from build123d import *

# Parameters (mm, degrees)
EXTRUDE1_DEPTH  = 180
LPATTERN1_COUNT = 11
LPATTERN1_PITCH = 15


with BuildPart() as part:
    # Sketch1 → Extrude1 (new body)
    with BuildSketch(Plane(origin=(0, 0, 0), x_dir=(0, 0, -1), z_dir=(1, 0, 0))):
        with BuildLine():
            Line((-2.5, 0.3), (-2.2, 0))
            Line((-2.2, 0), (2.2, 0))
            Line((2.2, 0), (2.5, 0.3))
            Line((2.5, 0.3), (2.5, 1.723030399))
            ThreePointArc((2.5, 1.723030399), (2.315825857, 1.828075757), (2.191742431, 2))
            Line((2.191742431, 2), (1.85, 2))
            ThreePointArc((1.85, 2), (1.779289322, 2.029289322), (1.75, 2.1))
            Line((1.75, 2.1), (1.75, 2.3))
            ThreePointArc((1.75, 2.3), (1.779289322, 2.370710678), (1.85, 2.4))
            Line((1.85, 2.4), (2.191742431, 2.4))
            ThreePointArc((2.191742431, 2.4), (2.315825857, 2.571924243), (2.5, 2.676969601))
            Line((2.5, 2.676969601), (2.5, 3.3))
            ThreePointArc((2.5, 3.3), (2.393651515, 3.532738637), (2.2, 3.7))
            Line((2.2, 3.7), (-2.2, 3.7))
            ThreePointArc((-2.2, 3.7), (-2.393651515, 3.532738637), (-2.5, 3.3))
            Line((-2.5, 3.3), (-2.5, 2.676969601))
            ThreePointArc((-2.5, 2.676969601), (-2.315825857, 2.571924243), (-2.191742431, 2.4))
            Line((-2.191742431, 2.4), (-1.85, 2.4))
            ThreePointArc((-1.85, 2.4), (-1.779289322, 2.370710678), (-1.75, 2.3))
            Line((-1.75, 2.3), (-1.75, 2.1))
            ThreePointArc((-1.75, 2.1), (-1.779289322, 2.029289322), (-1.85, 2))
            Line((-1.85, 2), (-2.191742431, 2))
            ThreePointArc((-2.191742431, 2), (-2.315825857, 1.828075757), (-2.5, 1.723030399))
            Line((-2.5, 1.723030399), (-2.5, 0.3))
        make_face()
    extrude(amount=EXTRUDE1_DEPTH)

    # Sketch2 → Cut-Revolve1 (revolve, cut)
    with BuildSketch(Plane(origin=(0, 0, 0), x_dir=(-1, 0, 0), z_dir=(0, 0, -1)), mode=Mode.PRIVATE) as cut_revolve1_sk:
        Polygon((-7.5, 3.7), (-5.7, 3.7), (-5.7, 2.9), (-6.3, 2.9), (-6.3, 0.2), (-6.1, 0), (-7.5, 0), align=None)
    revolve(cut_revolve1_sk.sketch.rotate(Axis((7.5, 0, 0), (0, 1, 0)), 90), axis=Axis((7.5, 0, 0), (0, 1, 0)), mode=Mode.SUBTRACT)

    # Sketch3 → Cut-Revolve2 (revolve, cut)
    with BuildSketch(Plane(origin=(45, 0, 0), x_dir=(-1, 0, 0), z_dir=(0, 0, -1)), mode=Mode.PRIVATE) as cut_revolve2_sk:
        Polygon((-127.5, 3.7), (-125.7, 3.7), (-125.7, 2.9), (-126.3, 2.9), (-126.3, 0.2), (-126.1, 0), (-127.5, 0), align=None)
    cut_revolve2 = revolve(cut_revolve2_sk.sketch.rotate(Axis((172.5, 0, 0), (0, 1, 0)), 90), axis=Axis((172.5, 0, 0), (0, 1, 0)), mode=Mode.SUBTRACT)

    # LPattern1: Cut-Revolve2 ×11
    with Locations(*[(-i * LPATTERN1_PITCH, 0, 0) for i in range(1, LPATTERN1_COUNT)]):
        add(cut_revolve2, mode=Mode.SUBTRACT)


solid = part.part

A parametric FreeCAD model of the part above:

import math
import FreeCAD as App
import Part
import Sketcher
from FreeCAD import Vector
Q = App.Units.Quantity


def add_polygon(sketch, points):
    """Adds a closed chain of lines whose ends are joined by coincident constraints."""
    first, n = sketch.GeometryCount, len(points)
    for a, b in zip(points, points[1:] + points[:1]):
        sketch.addGeometry(Part.LineSegment(App.Vector(*a, 0), App.Vector(*b, 0)), False)
    for i in range(n):
        sketch.addConstraint(Sketcher.Constraint("Coincident", first + i, 2, first + (i + 1) % n, 1))

doc = App.newDocument("Part")
body = doc.addObject("PartDesign::Body", "Body")

sketch1 = body.newObject("Sketcher::SketchObject", "Sketch")
sketch1.AttachmentSupport = (doc.getObject("YZ_Plane"), [""])
sketch1.MapMode = "FlatFace"
sketch1.addGeometry([
    Part.LineSegment(Vector(0.3, 2.5, 0), Vector(0, 2.2, 0)),
    Part.LineSegment(Vector(0, 2.2, 0), Vector(0, -2.2, 0)),
    Part.LineSegment(Vector(0, -2.2, 0), Vector(0.3, -2.5, 0)),
    Part.LineSegment(Vector(0.3, -2.5, 0), Vector(1.72303, -2.5, 0)),
    Part.ArcOfCircle(Part.Circle(Vector(2.2, -2.65, 0), Vector(0, 0, 1), 0.5), math.radians(113.578178), math.radians(162.542397)),
    Part.LineSegment(Vector(2, -2.191742, 0), Vector(2, -1.85, 0)),
    Part.ArcOfCircle(Part.Circle(Vector(2.1, -1.85, 0), Vector(0, 0, 1), 0.1), math.radians(90), math.radians(180)),
    Part.LineSegment(Vector(2.1, -1.75, 0), Vector(2.3, -1.75, 0)),
    Part.ArcOfCircle(Part.Circle(Vector(2.3, -1.85, 0), Vector(0, 0, 1), 0.1), math.radians(0), math.radians(90)),
    Part.LineSegment(Vector(2.4, -1.85, 0), Vector(2.4, -2.191742, 0)),
    Part.ArcOfCircle(Part.Circle(Vector(2.2, -2.65, 0), Vector(0, 0, 1), 0.5), math.radians(17.457603), math.radians(66.421822)),
    Part.LineSegment(Vector(2.67697, -2.5, 0), Vector(3.3, -2.5, 0)),
    Part.ArcOfCircle(Part.Circle(Vector(3.172739, -1.913652, 0), Vector(0, 0, 1), 0.6), math.radians(-77.754421), math.radians(-28.505784)),
    Part.LineSegment(Vector(3.7, -2.2, 0), Vector(3.7, 2.2, 0)),
    Part.ArcOfCircle(Part.Circle(Vector(3.172739, 1.913652, 0), Vector(0, 0, 1), 0.6), math.radians(28.505784), math.radians(77.754421)),
    Part.LineSegment(Vector(3.3, 2.5, 0), Vector(2.67697, 2.5, 0)),
    Part.ArcOfCircle(Part.Circle(Vector(2.2, 2.65, 0), Vector(0, 0, 1), 0.5), math.radians(-66.421822), math.radians(-17.457603)),
    Part.LineSegment(Vector(2.4, 2.191742, 0), Vector(2.4, 1.85, 0)),
    Part.ArcOfCircle(Part.Circle(Vector(2.3, 1.85, 0), Vector(0, 0, 1), 0.1), math.radians(-90), math.radians(0)),
    Part.LineSegment(Vector(2.3, 1.75, 0), Vector(2.1, 1.75, 0)),
    Part.ArcOfCircle(Part.Circle(Vector(2.1, 1.85, 0), Vector(0, 0, 1), 0.1), math.radians(180), math.radians(270)),
    Part.LineSegment(Vector(2, 1.85, 0), Vector(2, 2.191742, 0)),
    Part.ArcOfCircle(Part.Circle(Vector(2.2, 2.65, 0), Vector(0, 0, 1), 0.5), math.radians(-162.542397), math.radians(-113.578178)),
    Part.LineSegment(Vector(1.72303, 2.5, 0), Vector(0.3, 2.5, 0)),
], False)
sketch1.addConstraint([
    Sketcher.Constraint("Coincident", 0, 2, 1, 1),
    Sketcher.Constraint("Coincident", 1, 2, 2, 1),
    Sketcher.Constraint("Coincident", 2, 2, 3, 1),
    Sketcher.Constraint("Coincident", 3, 2, 4, 2),
    Sketcher.Constraint("Coincident", 4, 1, 5, 1),
    Sketcher.Constraint("Tangent", 5, 2, 6, 2),
    Sketcher.Constraint("Tangent", 6, 1, 7, 1),
    Sketcher.Constraint("Tangent", 7, 2, 8, 2),
    Sketcher.Constraint("Tangent", 8, 1, 9, 1),
    Sketcher.Constraint("Coincident", 9, 2, 10, 2),
    Sketcher.Constraint("Coincident", 10, 1, 11, 1),
    Sketcher.Constraint("Coincident", 11, 2, 12, 1),
    Sketcher.Constraint("Coincident", 12, 2, 13, 1),
    Sketcher.Constraint("Coincident", 13, 2, 14, 1),
    Sketcher.Constraint("Coincident", 14, 2, 15, 1),
    Sketcher.Constraint("Coincident", 15, 2, 16, 2),
    Sketcher.Constraint("Coincident", 16, 1, 17, 1),
    Sketcher.Constraint("Tangent", 17, 2, 18, 2),
    Sketcher.Constraint("Tangent", 18, 1, 19, 1),
    Sketcher.Constraint("Tangent", 19, 2, 20, 2),
    Sketcher.Constraint("Tangent", 20, 1, 21, 1),
    Sketcher.Constraint("Coincident", 21, 2, 22, 2),
    Sketcher.Constraint("Coincident", 22, 1, 23, 1),
    Sketcher.Constraint("Coincident", 23, 2, 0, 1),
    Sketcher.Constraint("Vertical", 1),
    Sketcher.Constraint("Horizontal", 3),
    Sketcher.Constraint("Vertical", 5),
    Sketcher.Constraint("Horizontal", 7),
    Sketcher.Constraint("Vertical", 9),
    Sketcher.Constraint("Horizontal", 11),
    Sketcher.Constraint("Vertical", 13),
    Sketcher.Constraint("Horizontal", 15),
    Sketcher.Constraint("Vertical", 17),
    Sketcher.Constraint("Horizontal", 19),
    Sketcher.Constraint("Vertical", 21),
    Sketcher.Constraint("Horizontal", 23),
    Sketcher.Constraint("Coincident", 10, 3, 4, 3),
    Sketcher.Constraint("Coincident", 22, 3, 16, 3),
    Sketcher.Constraint("Equal", 6, 8),
    Sketcher.Constraint("Equal", 4, 10),
    Sketcher.Constraint("Equal", 12, 14),
    Sketcher.Constraint("Equal", 10, 16),
    Sketcher.Constraint("Equal", 8, 18),
    Sketcher.Constraint("Equal", 18, 20),
    Sketcher.Constraint("Equal", 16, 22),
    Sketcher.Constraint("Symmetric", 0, 2, 1, 2, -1, 1),
    Sketcher.Constraint("Symmetric", 12, 3, 14, 3, -1),
    Sketcher.Constraint("Symmetric", 4, 3, 16, 3, -1),
    Sketcher.Constraint("Symmetric", 8, 3, 18, 3, -1),
    Sketcher.Constraint("Symmetric", 2, 2, 23, 2, -1),
    Sketcher.Constraint("Perpendicular", 0, 2),
    Sketcher.Constraint("Horizontal", 4, 1, 9, 2),
    Sketcher.Constraint("Horizontal", 3, 2, 10, 1),
    Sketcher.Constraint("Horizontal", 1, 2, 12, 2),
    Sketcher.Constraint("Horizontal", 16, 1, 21, 2),
    Sketcher.Constraint("Horizontal", 15, 2, 22, 1),
    Sketcher.Constraint("Radius", 4, Q("0.5 mm")),
    Sketcher.Constraint("Radius", 6, Q("0.1 mm")),
    Sketcher.Constraint("Radius", 12, Q("0.6 mm")),
    Sketcher.Constraint("DistanceX", 7, 1, 7, 2, Q("0.2 mm")),
    Sketcher.Constraint("DistanceY", 1, 2, 1, 1, Q("4.4 mm")),
    Sketcher.Constraint("DistanceX", -1, 1, 4, 1, Q("2 mm")),
    Sketcher.Constraint("DistanceX", 2, 2, 8, 3, Q("2 mm")),
    Sketcher.Constraint("DistanceX", 18, 3, 14, 2, Q("1 mm")),
    Sketcher.Constraint("DistanceX", -1, 1, 12, 2, Q("3.7 mm")),
    Sketcher.Constraint("DistanceY", 4, 3, 6, 3, Q("0.8 mm")),
    Sketcher.Constraint("DistanceY", 8, 3, 16, 3, Q("4.5 mm")),
])
pad1 = body.newObject("PartDesign::Pad", "Pad")
pad1.Profile = sketch1
pad1.Length = 180

sketch2 = body.newObject("Sketcher::SketchObject", "Sketch001")
sketch2.AttachmentSupport = (doc.getObject("XY_Plane"), [""])
sketch2.MapMode = "FlatFace"
add_polygon(sketch2, [(5.7, 3.7), (7.5, 3.7), (7.5, 0), (6.1, 0), (6.3, 0.2), (6.3, 2.9), (5.7, 2.9)])
sketch2.addGeometry(Part.LineSegment(Vector(7.5, 0, 0), Vector(7.5, 3.7, 0)), True)
sketch2.addConstraint([
    Sketcher.Constraint("Horizontal", 0),
    Sketcher.Constraint("Vertical", 1),
    Sketcher.Constraint("Horizontal", 2),
    Sketcher.Constraint("Vertical", 4),
    Sketcher.Constraint("Horizontal", 5),
    Sketcher.Constraint("Vertical", 6),
    Sketcher.Constraint("Vertical", 7),
    Sketcher.Constraint("Coincident", 7, 1, 1, 2),
    Sketcher.Constraint("PointOnObject", 1, 2, -1),
    Sketcher.Constraint("Horizontal", 6, 2, 7, 2),
    Sketcher.Constraint("Angle", 3, Q("45 deg")),
    Sketcher.Constraint("DistanceX", 0, 1, 0, 2, Q("1.8 mm")),
    Sketcher.Constraint("DistanceX", 2, 2, 2, 1, Q("1.4 mm")),
    Sketcher.Constraint("DistanceX", 5, 2, 5, 1, Q("0.6 mm")),
    Sketcher.Constraint("DistanceY", 1, 2, 1, 1, Q("3.7 mm")),
    Sketcher.Constraint("DistanceY", 4, 1, 4, 2, Q("2.7 mm")),
    Sketcher.Constraint("DistanceX", -1, 1, 0, 2, Q("7.5 mm")),
])
groove = body.newObject("PartDesign::Groove", "Groove")
groove.Profile = sketch2
groove.ReferenceAxis = (sketch2, ["Axis0"])
groove.Angle = 360

sketch3 = body.newObject("Sketcher::SketchObject", "Sketch002")
sketch3.AttachmentSupport = (doc.getObject("XY_Plane"), [""])
sketch3.MapMode = "FlatFace"
add_polygon(sketch3, [(170.7, 3.7), (172.5, 3.7), (172.5, 0), (171.1, 0), (171.3, 0.2), (171.3, 2.9), (170.7, 2.9)])
sketch3.addGeometry(Part.LineSegment(Vector(172.5, 0, 0), Vector(172.5, 3.7, 0)), True)
sketch3.addConstraint([
    Sketcher.Constraint("Horizontal", 0),
    Sketcher.Constraint("Vertical", 1),
    Sketcher.Constraint("Horizontal", 2),
    Sketcher.Constraint("Vertical", 4),
    Sketcher.Constraint("Horizontal", 5),
    Sketcher.Constraint("Vertical", 6),
    Sketcher.Constraint("Vertical", 7),
    Sketcher.Constraint("Coincident", 7, 1, 1, 2),
    Sketcher.Constraint("PointOnObject", 1, 2, -1),
    Sketcher.Constraint("Horizontal", 6, 2, 7, 2),
    Sketcher.Constraint("Angle", 3, Q("45 deg")),
    Sketcher.Constraint("DistanceX", 0, 1, 0, 2, Q("1.8 mm")),
    Sketcher.Constraint("DistanceX", 2, 2, 2, 1, Q("1.4 mm")),
    Sketcher.Constraint("DistanceX", 5, 2, 5, 1, Q("0.6 mm")),
    Sketcher.Constraint("DistanceY", 1, 2, 1, 1, Q("3.7 mm")),
    Sketcher.Constraint("DistanceY", 4, 1, 4, 2, Q("2.7 mm")),
    Sketcher.Constraint("DistanceX", -1, 1, 0, 2, Q("172.5 mm")),
])
groove2 = body.newObject("PartDesign::Groove", "Groove001")
groove2.Profile = sketch3
groove2.ReferenceAxis = (sketch3, ["Axis0"])
groove2.Angle = 360
doc.recompute()

linearpattern = body.newObject("PartDesign::LinearPattern", "LinearPattern")
linearpattern.Originals = [groove2]
linearpattern.Direction = (doc.getObject("X_Axis"), [""])
linearpattern.Mode = "offset"
linearpattern.Offset = 15
linearpattern.Occurrences = 11
linearpattern.Reversed = True
body.Tip = linearpattern

doc.recompute()
